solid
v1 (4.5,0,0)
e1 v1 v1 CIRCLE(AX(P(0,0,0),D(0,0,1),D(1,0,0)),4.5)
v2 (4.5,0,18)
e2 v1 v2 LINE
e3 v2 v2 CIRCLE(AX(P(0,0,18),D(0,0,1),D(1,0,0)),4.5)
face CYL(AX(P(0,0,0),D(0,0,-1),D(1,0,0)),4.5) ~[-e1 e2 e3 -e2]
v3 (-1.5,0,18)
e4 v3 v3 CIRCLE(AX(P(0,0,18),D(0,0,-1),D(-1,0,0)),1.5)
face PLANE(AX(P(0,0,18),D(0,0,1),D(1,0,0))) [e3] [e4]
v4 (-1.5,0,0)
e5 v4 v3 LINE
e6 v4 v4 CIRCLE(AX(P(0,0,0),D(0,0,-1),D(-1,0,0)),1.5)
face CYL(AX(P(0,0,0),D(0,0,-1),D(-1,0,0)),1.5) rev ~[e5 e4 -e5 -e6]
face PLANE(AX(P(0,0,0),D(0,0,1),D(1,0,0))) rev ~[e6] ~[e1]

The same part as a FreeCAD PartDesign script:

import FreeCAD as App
import Part
import Sketcher

doc = App.newDocument("Part")
body = doc.addObject("PartDesign::Body", "Body")

# Sketch on XY plane
sketch1 = body.newObject("Sketcher::SketchObject", "Sketch")
sketch1.AttachmentSupport = (doc.getObject("XY_Plane"), [""])
sketch1.MapMode = "FlatFace"
sketch1.addGeometry(Part.Circle(App.Vector(0, 0, 0), App.Vector(0, 0, 1), 4.5), False)
sketch1.addConstraint(Sketcher.Constraint("Coincident", 0, 3, -1, 1))
sketch1.addConstraint(Sketcher.Constraint("Diameter", 0, 9.0))
pad1 = body.newObject("PartDesign::Pad", "Pad")
pad1.Profile = sketch1
pad1.Length = 18

# Sketch on XY plane
sketch2 = body.newObject("Sketcher::SketchObject", "Sketch001")
sketch2.AttachmentSupport = (doc.getObject("XY_Plane"), [""])
sketch2.MapMode = "FlatFace"
sketch2.addGeometry(Part.Circle(App.Vector(0, 0, 0), App.Vector(0, 0, 1), 1.5), False)
sketch2.addConstraint(Sketcher.Constraint("Coincident", 0, 3, -1, 1))
sketch2.addConstraint(Sketcher.Constraint("Diameter", 0, 3.0))
pocket1 = body.newObject("PartDesign::Pocket", "Pocket")
pocket1.Profile = sketch2
pocket1.Length = 18
pocket1.Reversed = True

doc.recompute()
